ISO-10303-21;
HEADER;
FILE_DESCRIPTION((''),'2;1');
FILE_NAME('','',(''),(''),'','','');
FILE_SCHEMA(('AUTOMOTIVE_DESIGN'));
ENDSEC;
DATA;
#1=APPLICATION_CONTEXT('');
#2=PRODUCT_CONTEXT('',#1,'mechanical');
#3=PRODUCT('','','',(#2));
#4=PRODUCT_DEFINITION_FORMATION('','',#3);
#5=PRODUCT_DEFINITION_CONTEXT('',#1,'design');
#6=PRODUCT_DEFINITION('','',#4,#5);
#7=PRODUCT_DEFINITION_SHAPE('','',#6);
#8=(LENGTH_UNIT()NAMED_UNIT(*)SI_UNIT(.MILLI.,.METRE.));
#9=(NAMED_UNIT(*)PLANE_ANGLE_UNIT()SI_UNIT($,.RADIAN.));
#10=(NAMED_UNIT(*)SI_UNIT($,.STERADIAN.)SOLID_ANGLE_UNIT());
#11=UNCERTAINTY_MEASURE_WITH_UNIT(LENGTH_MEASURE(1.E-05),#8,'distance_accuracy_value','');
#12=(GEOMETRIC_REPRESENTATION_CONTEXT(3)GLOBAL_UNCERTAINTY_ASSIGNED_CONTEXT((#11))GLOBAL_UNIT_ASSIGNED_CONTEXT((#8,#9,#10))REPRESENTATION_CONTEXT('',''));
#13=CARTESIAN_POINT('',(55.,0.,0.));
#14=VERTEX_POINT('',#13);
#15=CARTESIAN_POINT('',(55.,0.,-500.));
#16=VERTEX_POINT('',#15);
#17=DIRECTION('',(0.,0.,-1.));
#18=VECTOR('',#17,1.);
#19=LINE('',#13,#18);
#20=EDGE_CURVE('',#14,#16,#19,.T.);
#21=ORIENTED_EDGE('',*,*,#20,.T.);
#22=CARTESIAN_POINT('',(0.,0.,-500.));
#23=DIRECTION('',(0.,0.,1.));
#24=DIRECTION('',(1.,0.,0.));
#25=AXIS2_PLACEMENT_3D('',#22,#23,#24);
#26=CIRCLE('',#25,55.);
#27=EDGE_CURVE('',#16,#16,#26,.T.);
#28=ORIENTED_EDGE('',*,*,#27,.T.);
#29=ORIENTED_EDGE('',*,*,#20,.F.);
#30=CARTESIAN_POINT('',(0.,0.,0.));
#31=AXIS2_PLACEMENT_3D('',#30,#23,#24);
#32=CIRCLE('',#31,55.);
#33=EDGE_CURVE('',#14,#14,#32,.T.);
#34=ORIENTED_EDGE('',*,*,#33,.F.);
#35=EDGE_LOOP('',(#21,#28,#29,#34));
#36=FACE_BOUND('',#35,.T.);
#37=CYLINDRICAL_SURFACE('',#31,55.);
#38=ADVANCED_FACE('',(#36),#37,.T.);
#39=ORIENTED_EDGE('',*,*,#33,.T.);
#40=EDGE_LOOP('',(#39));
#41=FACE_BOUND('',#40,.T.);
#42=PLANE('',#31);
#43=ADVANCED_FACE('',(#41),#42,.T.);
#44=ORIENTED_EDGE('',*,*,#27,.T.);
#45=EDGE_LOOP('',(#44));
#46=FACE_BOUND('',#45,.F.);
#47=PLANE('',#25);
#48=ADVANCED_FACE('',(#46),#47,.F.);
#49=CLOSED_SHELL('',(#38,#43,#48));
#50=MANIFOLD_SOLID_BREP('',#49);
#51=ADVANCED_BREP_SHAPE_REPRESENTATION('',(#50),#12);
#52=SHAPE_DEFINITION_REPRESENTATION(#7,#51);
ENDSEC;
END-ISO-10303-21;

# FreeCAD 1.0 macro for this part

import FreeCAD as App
import Part
import Sketcher
Q = App.Units.Quantity

doc = App.newDocument("Part")
body = doc.addObject("PartDesign::Body", "Body")

sketch1 = body.newObject("Sketcher::SketchObject", "Sketch")
sketch1.AttachmentSupport = (doc.getObject("XY_Plane"), [""])
sketch1.MapMode = "FlatFace"
sketch1.addGeometry(Part.Circle(App.Vector(0, 0, 0), App.Vector(0, 0, 1), 55), False)
sketch1.addConstraint(Sketcher.Constraint("Coincident", 0, 3, -1, 1))
sketch1.addConstraint(Sketcher.Constraint("Diameter", 0, Q("110 mm")))
pad1 = body.newObject("PartDesign::Pad", "Pad")
pad1.Profile = sketch1
pad1.Length = 500
pad1.Reversed = True

sketch2 = body.newObject("Sketcher::SketchObject", "Sketch001")
sketch2.AttachmentSupport = (doc.getObject("XY_Plane"), [""])
sketch2.MapMode = "FlatFace"
sketch2.addGeometry(Part.Circle(App.Vector(0, 0, 0), App.Vector(0, 0, 1), 55), False)
sketch2.addGeometry(Part.Circle(App.Vector(0, 0, 0), App.Vector(0, 0, 1), 50), False)
sketch2.addConstraint(Sketcher.Constraint("Coincident", 0, 3, -1, 1))
sketch2.addConstraint(Sketcher.Constraint("Coincident", 1, 3, -1, 1))
sketch2.addConstraint(Sketcher.Constraint("Diameter", 0, Q("110 mm")))
sketch2.addConstraint(Sketcher.Constraint("Diameter", 1, Q("100 mm")))
pad2 = body.newObject("PartDesign::Pad", "Pad001")
pad2.Profile = sketch2
pad2.Length = 62.5
pad2.Reversed = True

doc.recompute()
